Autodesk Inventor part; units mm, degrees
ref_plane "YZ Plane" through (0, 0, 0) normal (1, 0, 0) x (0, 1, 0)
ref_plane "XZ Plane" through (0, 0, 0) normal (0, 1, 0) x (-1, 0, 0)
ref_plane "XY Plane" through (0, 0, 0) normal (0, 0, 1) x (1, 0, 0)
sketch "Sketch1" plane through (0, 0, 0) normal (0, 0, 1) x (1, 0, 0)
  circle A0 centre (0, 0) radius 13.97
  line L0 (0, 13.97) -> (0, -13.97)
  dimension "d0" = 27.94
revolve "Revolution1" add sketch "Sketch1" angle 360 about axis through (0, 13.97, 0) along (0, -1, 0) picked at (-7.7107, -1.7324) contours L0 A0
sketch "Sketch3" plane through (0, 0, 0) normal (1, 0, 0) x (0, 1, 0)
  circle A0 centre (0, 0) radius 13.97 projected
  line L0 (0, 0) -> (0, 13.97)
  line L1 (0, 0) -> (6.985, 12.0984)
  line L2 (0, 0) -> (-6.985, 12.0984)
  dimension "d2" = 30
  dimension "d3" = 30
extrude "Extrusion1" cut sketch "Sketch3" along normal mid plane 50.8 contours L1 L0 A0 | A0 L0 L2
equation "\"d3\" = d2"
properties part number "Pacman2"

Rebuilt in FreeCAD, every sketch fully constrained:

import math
import FreeCAD as App
import Part
import Sketcher
Q = App.Units.Quantity

doc = App.newDocument("Part")
params = doc.addObject("Spreadsheet::Sheet", "Params")
for row, (alias, value) in enumerate([
    ("sketch1_radius", "0.55 in"),
    ("revolution_angle", "360 deg"),
    ("sketch2_radius", "0.55 in"),
    ("pocket1_length", "2 in"),
], start=1):
    params.set(f"A{row}", alias)
    params.set(f"B{row}", "=" + value)
    params.setAlias(f"B{row}", alias)

body = doc.addObject("PartDesign::Body", "Body")

# Sketch on XY plane
sketch1 = doc.addObject("Sketcher::SketchObject", "Sketch")
body.addObject(sketch1)
sketch1.AttachmentSupport = (doc.XY_Plane, [""])
sketch1.MapMode = "FlatFace"
sketch1.addGeometry(Part.LineSegment(App.Vector(0, -14, 0), App.Vector(0, 14, 0)), False)
sketch1.addGeometry(Part.ArcOfCircle(Part.Circle(App.Vector(0, 0, 0), App.Vector(0, 0, 1), 14), math.radians(90), math.radians(270)), False)
sketch1.addConstraint(Sketcher.Constraint("Coincident", 0, 1, 1, 2))
sketch1.addConstraint(Sketcher.Constraint("Coincident", 1, 1, 0, 2))
sketch1.addConstraint(Sketcher.Constraint("Vertical", 0))
sketch1.addConstraint(Sketcher.Constraint("Coincident", 1, 3, -1, 1))
sketch1.addConstraint(Sketcher.Constraint("PointOnObject", 0, 1, -2))
sketch1.addConstraint(Sketcher.Constraint("Radius", 1, Q("0.55 in")))
sketch1.setExpression("Constraints[5]", "Params.sketch1_radius")
revolution = doc.addObject("PartDesign::Revolution", "Revolution")
body.addObject(revolution)
revolution.Profile = sketch1
revolution.ReferenceAxis = (sketch1, ["V_Axis"])
revolution.setExpression("Angle", "Params.revolution_angle")

# Sketch on YZ plane
sketch2 = doc.addObject("Sketcher::SketchObject", "Sketch001")
body.addObject(sketch2)
sketch2.AttachmentSupport = (doc.YZ_Plane, [""])
sketch2.MapMode = "FlatFace"
sketch2.addGeometry(Part.LineSegment(App.Vector(0, 0, 0), App.Vector(7, 12, 0)), False)
sketch2.addGeometry(Part.ArcOfCircle(Part.Circle(App.Vector(0, 0, 0), App.Vector(0, 0, 1), 14), math.radians(60), math.radians(120)), False)
sketch2.addGeometry(Part.LineSegment(App.Vector(-7, 12, 0), App.Vector(0, 0, 0)), False)
sketch2.addConstraint(Sketcher.Constraint("Coincident", 0, 2, 1, 1))
sketch2.addConstraint(Sketcher.Constraint("Coincident", 1, 2, 2, 1))
sketch2.addConstraint(Sketcher.Constraint("Coincident", 2, 2, 0, 1))
sketch2.addConstraint(Sketcher.Constraint("Coincident", 1, 3, -1, 1))
sketch2.addConstraint(Sketcher.Constraint("Coincident", 2, 2, -1, 1))
sketch2.addConstraint(Sketcher.Constraint("Horizontal", 0, 2, 1, 2))
sketch2.addConstraint(Sketcher.Constraint("Radius", 1, Q("0.55 in")))
sketch2.addConstraint(Sketcher.Constraint("Angle", 0, Q("60 deg")))
sketch2.setExpression("Constraints[6]", "Params.sketch2_radius")
pocket1 = doc.addObject("PartDesign::Pocket", "Pocket")
body.addObject(pocket1)
pocket1.Profile = sketch2
pocket1.setExpression("Length", "Params.pocket1_length")
pocket1.Midplane = True

doc.recompute()
